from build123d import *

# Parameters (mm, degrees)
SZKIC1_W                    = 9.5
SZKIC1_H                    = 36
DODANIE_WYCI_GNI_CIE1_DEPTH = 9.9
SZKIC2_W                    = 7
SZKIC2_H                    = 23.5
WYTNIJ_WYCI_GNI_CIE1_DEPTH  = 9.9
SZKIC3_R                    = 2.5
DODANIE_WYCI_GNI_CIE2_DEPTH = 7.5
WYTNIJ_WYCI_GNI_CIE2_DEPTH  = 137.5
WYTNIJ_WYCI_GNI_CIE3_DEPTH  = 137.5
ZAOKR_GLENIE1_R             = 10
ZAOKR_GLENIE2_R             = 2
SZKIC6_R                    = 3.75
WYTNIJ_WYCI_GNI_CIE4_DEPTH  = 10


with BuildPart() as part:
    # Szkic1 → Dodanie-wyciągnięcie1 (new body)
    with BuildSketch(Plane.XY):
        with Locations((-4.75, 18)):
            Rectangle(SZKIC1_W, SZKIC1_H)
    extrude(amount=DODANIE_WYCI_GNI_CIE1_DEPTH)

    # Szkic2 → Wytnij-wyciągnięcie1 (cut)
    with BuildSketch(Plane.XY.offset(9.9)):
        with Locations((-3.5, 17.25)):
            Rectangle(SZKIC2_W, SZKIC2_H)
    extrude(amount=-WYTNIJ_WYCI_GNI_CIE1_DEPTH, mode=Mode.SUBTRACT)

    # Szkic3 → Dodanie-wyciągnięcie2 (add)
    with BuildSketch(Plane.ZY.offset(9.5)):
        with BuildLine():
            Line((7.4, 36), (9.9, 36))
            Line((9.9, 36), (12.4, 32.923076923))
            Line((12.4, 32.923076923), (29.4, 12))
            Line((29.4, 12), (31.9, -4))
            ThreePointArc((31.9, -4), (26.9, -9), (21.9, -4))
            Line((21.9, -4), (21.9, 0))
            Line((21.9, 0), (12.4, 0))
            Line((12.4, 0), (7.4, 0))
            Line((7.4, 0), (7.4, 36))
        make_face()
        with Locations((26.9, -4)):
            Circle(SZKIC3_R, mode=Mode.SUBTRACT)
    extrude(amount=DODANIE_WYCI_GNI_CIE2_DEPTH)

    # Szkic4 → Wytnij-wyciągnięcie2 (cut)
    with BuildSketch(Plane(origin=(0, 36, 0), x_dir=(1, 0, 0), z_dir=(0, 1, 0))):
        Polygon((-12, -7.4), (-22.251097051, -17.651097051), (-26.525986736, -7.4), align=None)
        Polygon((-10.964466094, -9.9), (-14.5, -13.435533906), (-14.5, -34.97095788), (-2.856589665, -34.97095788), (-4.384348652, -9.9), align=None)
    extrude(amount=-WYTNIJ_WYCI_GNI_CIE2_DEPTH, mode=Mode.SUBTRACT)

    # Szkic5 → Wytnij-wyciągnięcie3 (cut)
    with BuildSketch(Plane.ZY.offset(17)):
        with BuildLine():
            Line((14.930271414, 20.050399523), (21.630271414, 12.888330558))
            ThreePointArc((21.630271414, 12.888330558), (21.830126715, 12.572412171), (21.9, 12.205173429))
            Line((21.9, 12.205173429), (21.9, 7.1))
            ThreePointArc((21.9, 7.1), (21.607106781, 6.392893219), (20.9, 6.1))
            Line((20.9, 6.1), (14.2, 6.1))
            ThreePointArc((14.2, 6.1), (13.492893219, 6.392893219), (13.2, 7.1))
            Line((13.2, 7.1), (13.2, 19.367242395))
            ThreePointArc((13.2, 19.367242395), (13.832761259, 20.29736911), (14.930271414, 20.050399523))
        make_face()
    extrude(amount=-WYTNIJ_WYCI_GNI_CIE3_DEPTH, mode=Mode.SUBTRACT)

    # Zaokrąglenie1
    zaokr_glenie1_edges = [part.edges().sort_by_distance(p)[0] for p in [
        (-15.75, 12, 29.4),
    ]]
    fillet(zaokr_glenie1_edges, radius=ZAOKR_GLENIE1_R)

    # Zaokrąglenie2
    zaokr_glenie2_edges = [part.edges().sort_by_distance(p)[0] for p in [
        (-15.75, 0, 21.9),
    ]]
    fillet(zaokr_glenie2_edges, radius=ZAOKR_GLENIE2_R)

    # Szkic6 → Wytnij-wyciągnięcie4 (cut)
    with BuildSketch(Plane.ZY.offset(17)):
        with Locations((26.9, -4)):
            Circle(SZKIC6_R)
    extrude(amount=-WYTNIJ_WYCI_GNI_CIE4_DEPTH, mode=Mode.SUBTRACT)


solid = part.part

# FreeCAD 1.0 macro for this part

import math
import FreeCAD as App
import Part
import Sketcher

V = App.Vector
Q = App.Units.Quantity


def edges_at(feature, points):
    """Names of the edges that pass closest to the given points."""
    edges = feature.Shape.Edges
    near = lambda p: min(range(len(edges)), key=lambda i: edges[i].distToShape(Part.Vertex(*p))[0])
    return sorted({f"Edge{near(p) + 1}" for p in points})

doc = App.newDocument("Part")
params = doc.addObject("Spreadsheet::Sheet", "Params")
for row, (alias, value) in enumerate([
    ("sketch1_height", "36 mm"),
    ("sketch1_width", "9.5 mm"),
    ("pad1_length", "9.9 mm"),
    ("sketch2_width", "7 mm"),
    ("sketch2_height", "23.5 mm"),
    ("pocket1_length", "9.9 mm"),
    ("sketch3_diameter", "5 mm"),
    ("sketch3_radius", "5 mm"),
    ("sketch3_width", "36 mm"),
    ("sketch3_width2", "4 mm"),
    ("sketch3_height", "2.5 mm"),
    ("pad2_length", "7.5 mm"),
    ("sketch4_length", "5 mm"),
    ("pocket2_length", "137.5 mm"),
    ("sketch5_radius", "1 mm"),
    ("sketch5_height", "6.7 mm"),
    ("pocket3_length", "137.5 mm"),
    ("fillet_radius", "10 mm"),
    ("fillet2_radius", "2 mm"),
    ("sketch6_diameter", "7.5 mm"),
    ("pocket4_length", "10 mm"),
], start=1):
    params.set(f"A{row}", alias)
    params.set(f"B{row}", "=" + value)
    params.setAlias(f"B{row}", alias)

body = doc.addObject("PartDesign::Body", "Body")

# Sketch on XY plane
sketch1 = body.newObject("Sketcher::SketchObject", "Sketch")
sketch1.AttachmentSupport = (doc.getObject("XY_Plane"), [""])
sketch1.MapMode = "FlatFace"
sketch1.addGeometry(Part.LineSegment(V(-10, 36, 0), V(-10, 0, 0)), False)
sketch1.addGeometry(Part.LineSegment(V(-10, 0, 0), V(0, 0, 0)), False)
sketch1.addGeometry(Part.LineSegment(V(0, 0, 0), V(0, 36, 0)), False)
sketch1.addGeometry(Part.LineSegment(V(0, 36, 0), V(-10, 36, 0)), False)
sketch1.addConstraint(Sketcher.Constraint("Coincident", 0, 2, 1, 1))
sketch1.addConstraint(Sketcher.Constraint("Coincident", 1, 2, 2, 1))
sketch1.addConstraint(Sketcher.Constraint("Coincident", 2, 2, 3, 1))
sketch1.addConstraint(Sketcher.Constraint("Coincident", 3, 2, 0, 1))
sketch1.addConstraint(Sketcher.Constraint("Vertical", 0))
sketch1.addConstraint(Sketcher.Constraint("Horizontal", 1))
sketch1.addConstraint(Sketcher.Constraint("Vertical", 2))
sketch1.addConstraint(Sketcher.Constraint("Horizontal", 3))
sketch1.addConstraint(Sketcher.Constraint("Coincident", 1, 2, -1, 1))
sketch1.addConstraint(Sketcher.Constraint("DistanceY", 0, 2, 0, 1, Q("36 mm")))
sketch1.addConstraint(Sketcher.Constraint("DistanceX", 1, 1, 1, 2, Q("9.5 mm")))
sketch1.setExpression("Constraints[9]", "Params.sketch1_height")
sketch1.setExpression("Constraints[10]", "Params.sketch1_width")
pad1 = body.newObject("PartDesign::Pad", "Pad")
pad1.Profile = sketch1
pad1.setExpression("Length", "Params.pad1_length")

# Sketch on XY plane
sketch2 = body.newObject("Sketcher::SketchObject", "Sketch001")
sketch2.AttachmentSupport = (doc.getObject("XY_Plane"), [""])
sketch2.MapMode = "FlatFace"
sketch2.AttachmentOffset = App.Placement(V(0, 0, 9.9), App.Rotation())
sketch2.addGeometry(Part.LineSegment(V(-7, 29, 0), V(-7, 6, 0)), False)
sketch2.addGeometry(Part.LineSegment(V(-7, 6, 0), V(0, 6, 0)), False)
sketch2.addGeometry(Part.LineSegment(V(0, 6, 0), V(0, 29, 0)), False)
sketch2.addGeometry(Part.LineSegment(V(0, 29, 0), V(-7, 29, 0)), False)
sketch2.addConstraint(Sketcher.Constraint("Coincident", 0, 2, 1, 1))
sketch2.addConstraint(Sketcher.Constraint("Coincident", 1, 2, 2, 1))
sketch2.addConstraint(Sketcher.Constraint("Coincident", 2, 2, 3, 1))
sketch2.addConstraint(Sketcher.Constraint("Coincident", 3, 2, 0, 1))
sketch2.addConstraint(Sketcher.Constraint("Vertical", 0))
sketch2.addConstraint(Sketcher.Constraint("Horizontal", 1))
sketch2.addConstraint(Sketcher.Constraint("Vertical", 2))
sketch2.addConstraint(Sketcher.Constraint("Horizontal", 3))
sketch2.addConstraint(Sketcher.Constraint("PointOnObject", 1, 2, -2))
sketch2.addConstraint(Sketcher.Constraint("DistanceX", 1, 1, 1, 2, Q("7 mm")))
sketch2.addConstraint(Sketcher.Constraint("DistanceY", 0, 2, 0, 1, Q("23.5 mm")))
sketch2.addConstraint(Sketcher.Constraint("DistanceY", -1, 1, 2, 2, Q("29 mm")))
sketch2.setExpression("Constraints[9]", "Params.sketch2_width")
sketch2.setExpression("Constraints[10]", "Params.sketch2_height")
pocket1 = body.newObject("PartDesign::Pocket", "Pocket")
pocket1.Profile = sketch2
pocket1.setExpression("Length", "Params.pocket1_length")

# Sketch on YZ plane
sketch3 = body.newObject("Sketcher::SketchObject", "Sketch002")
sketch3.AttachmentSupport = (doc.getObject("YZ_Plane"), [""])
sketch3.MapMode = "FlatFace"
sketch3.AttachmentOffset = App.Placement(V(0, 0, -9.5), App.Rotation())
sketch3.addGeometry(Part.LineSegment(V(36, 9.9, 0), V(36, 7.4, 0)), False)
sketch3.addGeometry(Part.LineSegment(V(36, 7.4, 0), V(0, 7.4, 0)), False)
sketch3.addGeometry(Part.LineSegment(V(0, 7.4, 0), V(0, 21.9, 0)), False)
sketch3.addGeometry(Part.LineSegment(V(0, 21.9, 0), V(-4, 21.9, 0)), False)
sketch3.addGeometry(Part.ArcOfCircle(Part.Circle(V(-4, 26.9, 0), V(0, 0, 1), 5), math.radians(90), math.radians(270)), False)
sketch3.addGeometry(Part.LineSegment(V(-4, 31.9, 0), V(12, 29.4, 0)), False)
sketch3.addGeometry(Part.LineSegment(V(12, 29.4, 0), V(32.9, 12.4, 0)), False)
sketch3.addGeometry(Part.LineSegment(V(32.9, 12.4, 0), V(36, 9.9, 0)), False)
sketch3.addGeometry(Part.Circle(V(-4, 26.9, 0), V(0, 0, 1), 2.5), False)
sketch3.addConstraint(Sketcher.Constraint("Coincident", 0, 2, 1, 1))
sketch3.addConstraint(Sketcher.Constraint("Coincident", 1, 2, 2, 1))
sketch3.addConstraint(Sketcher.Constraint("Coincident", 2, 2, 3, 1))
sketch3.addConstraint(Sketcher.Constraint("Tangent", 3, 2, 4, 2))
sketch3.addConstraint(Sketcher.Constraint("Coincident", 4, 1, 5, 1))
sketch3.addConstraint(Sketcher.Constraint("Coincident", 5, 2, 6, 1))
sketch3.addConstraint(Sketcher.Constraint("Coincident", 6, 2, 7, 1))
sketch3.addConstraint(Sketcher.Constraint("Coincident", 7, 2, 0, 1))
sketch3.addConstraint(Sketcher.Constraint("Vertical", 0))
sketch3.addConstraint(Sketcher.Constraint("Horizontal", 1))
sketch3.addConstraint(Sketcher.Constraint("Vertical", 2))
sketch3.addConstraint(Sketcher.Constraint("Horizontal", 3))
sketch3.addConstraint(Sketcher.Constraint("Coincident", 8, 3, 4, 3))
sketch3.addConstraint(Sketcher.Constraint("PointOnObject", 1, 2, -2))
sketch3.addConstraint(Sketcher.Constraint("Parallel", 6, 7))
sketch3.addConstraint(Sketcher.Constraint("Vertical", 3, 2, 4, 1))
sketch3.addConstraint(Sketcher.Constraint("Diameter", 8, Q("5 mm")))
sketch3.addConstraint(Sketcher.Constraint("Radius", 4, Q("5 mm")))
sketch3.addConstraint(Sketcher.Constraint("DistanceX", 1, 2, 1, 1, Q("36 mm")))
sketch3.addConstraint(Sketcher.Constraint("DistanceX", 3, 2, 3, 1, Q("4 mm")))
sketch3.addConstraint(Sketcher.Constraint("DistanceY", 0, 2, 0, 1, Q("2.5 mm")))
sketch3.addConstraint(Sketcher.Constraint("DistanceY", 2, 1, 2, 2, Q("14.5 mm")))
sketch3.addConstraint(Sketcher.Constraint("DistanceX", -1, 1, 5, 2, Q("12 mm")))
sketch3.addConstraint(Sketcher.Constraint("DistanceY", 0, 2, 6, 2, Q("5 mm")))
sketch3.addConstraint(Sketcher.Constraint("DistanceY", 6, 2, 5, 2, Q("17 mm")))
sketch3.addConstraint(Sketcher.Constraint("DistanceY", -1, 1, 4, 3, Q("26.9 mm")))
sketch3.setExpression("Constraints[16]", "Params.sketch3_diameter")
sketch3.setExpression("Constraints[17]", "Params.sketch3_radius")
sketch3.setExpression("Constraints[18]", "Params.sketch3_width")
sketch3.setExpression("Constraints[19]", "Params.sketch3_width2")
sketch3.setExpression("Constraints[20]", "Params.sketch3_height")
pad2 = body.newObject("PartDesign::Pad", "Pad001")
pad2.Profile = sketch3
pad2.setExpression("Length", "Params.pad2_length")
pad2.Reversed = True

# Sketch on XZ plane
sketch4 = body.newObject("Sketcher::SketchObject", "Sketch003")
sketch4.AttachmentSupport = (doc.getObject("XZ_Plane"), [""])
sketch4.MapMode = "FlatFace"
sketch4.AttachmentOffset = App.Placement(V(0, 0, -36), App.Rotation())
sketch4.addGeometry(Part.LineSegment(V(-22, 18, 0), V(-12, 7, 0)), False)
sketch4.addGeometry(Part.LineSegment(V(-12, 7, 0), V(-27, 7, 0)), False)
sketch4.addGeometry(Part.LineSegment(V(-27, 7, 0), V(-22, 18, 0)), False)
sketch4.addGeometry(Part.LineSegment(V(-11, 10, 0), V(-14, 13, 0)), False)
sketch4.addGeometry(Part.LineSegment(V(-14, 13, 0), V(-14, 35, 0)), False)
sketch4.addGeometry(Part.LineSegment(V(-14, 35, 0), V(-3, 35, 0)), False)
sketch4.addGeometry(Part.LineSegment(V(-3, 35, 0), V(-4, 10, 0)), False)
sketch4.addGeometry(Part.LineSegment(V(-4, 10, 0), V(-11, 10, 0)), False)
sketch4.addConstraint(Sketcher.Constraint("Coincident", 0, 2, 1, 1))
sketch4.addConstraint(Sketcher.Constraint("Coincident", 1, 2, 2, 1))
sketch4.addConstraint(Sketcher.Constraint("Coincident", 2, 2, 0, 1))
sketch4.addConstraint(Sketcher.Constraint("Coincident", 3, 2, 4, 1))
sketch4.addConstraint(Sketcher.Constraint("Coincident", 4, 2, 5, 1))
sketch4.addConstraint(Sketcher.Constraint("Coincident", 5, 2, 6, 1))
sketch4.addConstraint(Sketcher.Constraint("Coincident", 6, 2, 7, 1))
sketch4.addConstraint(Sketcher.Constraint("Coincident", 7, 2, 3, 1))
sketch4.addConstraint(Sketcher.Constraint("Horizontal", 1))
sketch4.addConstraint(Sketcher.Constraint("Vertical", 4))
sketch4.addConstraint(Sketcher.Constraint("Horizontal", 5))
sketch4.addConstraint(Sketcher.Constraint("Horizontal", 7))
sketch4.addConstraint(Sketcher.Constraint("Parallel", 0, 3))
sketch4.addConstraint(Sketcher.Constraint("Angle", 0, Q("-45 deg")))
sketch4.addConstraint(Sketcher.Constraint("Distance", 3, Q("5 mm")))
sketch4.addConstraint(Sketcher.Constraint("DistanceX", 0, 2, -1, 1, Q("12 mm")))
sketch4.addConstraint(Sketcher.Constraint("DistanceY", -1, 1, 0, 2, Q("7.4 mm")))
sketch4.addConstraint(Sketcher.Constraint("DistanceX", 3, 2, -1, 1, Q("14.5 mm")))
sketch4.addConstraint(Sketcher.Constraint("DistanceY", -1, 1, 6, 2, Q("9.9 mm")))
sketch4.addConstraint(Sketcher.Constraint("DistanceX", 5, 1, 5, 2, Q("11.64341 mm")))
sketch4.addConstraint(Sketcher.Constraint("Distance", 0, Q("14.49724 mm")))
sketch4.addConstraint(Sketcher.Constraint("Distance", 2, Q("11.10674 mm")))
sketch4.addConstraint(Sketcher.Constraint("DistanceX", 7, 2, 7, 1, Q("6.580117 mm")))
sketch4.addConstraint(Sketcher.Constraint("DistanceY", 4, 1, 4, 2, Q("21.535424 mm")))
sketch4.setExpression("Constraints[14]", "Params.sketch4_length")
pocket2 = body.newObject("PartDesign::Pocket", "Pocket001")
pocket2.Profile = sketch4
pocket2.setExpression("Length", "Params.pocket2_length")
pocket2.Reversed = True

# Sketch on YZ plane
sketch5 = body.newObject("Sketcher::SketchObject", "Sketch004")
sketch5.AttachmentSupport = (doc.getObject("YZ_Plane"), [""])
sketch5.MapMode = "FlatFace"
sketch5.AttachmentOffset = App.Placement(V(0, 0, -17), App.Rotation())
sketch5.addGeometry(Part.LineSegment(V(12.9, 21.6, 0), V(20.1, 14.9, 0)), False)
sketch5.addGeometry(Part.ArcOfCircle(Part.Circle(V(19.4, 14.2, 0), V(0, 0, 1), 1), math.radians(-90), math.radians(47)), False)
sketch5.addGeometry(Part.LineSegment(V(19.4, 13.2, 0), V(7.1, 13.2, 0)), False)
sketch5.addGeometry(Part.ArcOfCircle(Part.Circle(V(7.1, 14.2, 0), V(0, 0, 1), 1), math.radians(-180), math.radians(-90)), False)
sketch5.addGeometry(Part.LineSegment(V(6.1, 14.2, 0), V(6.1, 20.9, 0)), False)
sketch5.addGeometry(Part.ArcOfCircle(Part.Circle(V(7.1, 20.9, 0), V(0, 0, 1), 1), math.radians(90), math.radians(180)), False)
sketch5.addGeometry(Part.LineSegment(V(7.1, 21.9, 0), V(12.2, 21.9, 0)), False)
sketch5.addGeometry(Part.ArcOfCircle(Part.Circle(V(12.2, 20.9, 0), V(0, 0, 1), 1), math.radians(47), math.radians(90)), False)
sketch5.addConstraint(Sketcher.Constraint("Tangent", 0, 2, 1, 2))
sketch5.addConstraint(Sketcher.Constraint("Tangent", 1, 1, 2, 1))
sketch5.addConstraint(Sketcher.Constraint("Tangent", 2, 2, 3, 2))
sketch5.addConstraint(Sketcher.Constraint("Tangent", 3, 1, 4, 1))
sketch5.addConstraint(Sketcher.Constraint("Tangent", 4, 2, 5, 2))
sketch5.addConstraint(Sketcher.Constraint("Tangent", 5, 1, 6, 1))
sketch5.addConstraint(Sketcher.Constraint("Tangent", 6, 2, 7, 2))
sketch5.addConstraint(Sketcher.Constraint("Tangent", 7, 1, 0, 1))
sketch5.addConstraint(Sketcher.Constraint("Horizontal", 2))
sketch5.addConstraint(Sketcher.Constraint("Vertical", 4))
sketch5.addConstraint(Sketcher.Constraint("Horizontal", 6))
sketch5.addConstraint(Sketcher.Constraint("Equal", 1, 3))
sketch5.addConstraint(Sketcher.Constraint("Equal", 3, 5))
sketch5.addConstraint(Sketcher.Constraint("Equal", 5, 7))
sketch5.addConstraint(Sketcher.Constraint("Radius", 1, Q("1 mm")))
sketch5.addConstraint(Sketcher.Constraint("DistanceY", 4, 1, 4, 2, Q("6.7 mm")))
sketch5.addConstraint(Sketcher.Constraint("DistanceY", -1, 1, 1, 3, Q("14.2 mm")))
sketch5.addConstraint(Sketcher.Constraint("DistanceX", -1, 1, 3, 3, Q("7.1 mm")))
sketch5.addConstraint(Sketcher.Constraint("DistanceX", -1, 1, 0, 2, Q("20.0504 mm")))
sketch5.addConstraint(Sketcher.Constraint("DistanceX", 2, 2, 2, 1, Q("12.267242 mm")))
sketch5.setExpression("Constraints[14]", "Params.sketch5_radius")
sketch5.setExpression("Constraints[15]", "Params.sketch5_height")
pocket3 = body.newObject("PartDesign::Pocket", "Pocket002")
pocket3.Profile = sketch5
pocket3.setExpression("Length", "Params.pocket3_length")
pocket3.Reversed = True
doc.recompute()

fillet = body.newObject("PartDesign::Fillet", "Fillet")
fillet.Base = (pocket3, edges_at(pocket3, [(-15.75, 12, 29.4)]))
fillet.setExpression("Radius", "Params.fillet_radius")
doc.recompute()

fillet2 = body.newObject("PartDesign::Fillet", "Fillet001")
fillet2.Base = (fillet, edges_at(fillet, [(-15.75, 0, 21.9)]))
fillet2.setExpression("Radius", "Params.fillet2_radius")

# Sketch on YZ plane
sketch6 = body.newObject("Sketcher::SketchObject", "Sketch005")
sketch6.AttachmentSupport = (doc.getObject("YZ_Plane"), [""])
sketch6.MapMode = "FlatFace"
sketch6.AttachmentOffset = App.Placement(V(0, 0, -17), App.Rotation())
sketch6.addGeometry(Part.Circle(V(-4, 26.9, 0), V(0, 0, 1), 3.8), False)
sketch6.addConstraint(Sketcher.Constraint("Diameter", 0, Q("7.5 mm")))
sketch6.addConstraint(Sketcher.Constraint("DistanceX", 0, 3, -1, 1, Q("4 mm")))
sketch6.addConstraint(Sketcher.Constraint("DistanceY", -1, 1, 0, 3, Q("26.9 mm")))
sketch6.setExpression("Constraints[0]", "Params.sketch6_diameter")
pocket4 = body.newObject("PartDesign::Pocket", "Pocket003")
pocket4.Profile = sketch6
pocket4.setExpression("Length", "Params.pocket4_length")
pocket4.Reversed = True

doc.recompute()
